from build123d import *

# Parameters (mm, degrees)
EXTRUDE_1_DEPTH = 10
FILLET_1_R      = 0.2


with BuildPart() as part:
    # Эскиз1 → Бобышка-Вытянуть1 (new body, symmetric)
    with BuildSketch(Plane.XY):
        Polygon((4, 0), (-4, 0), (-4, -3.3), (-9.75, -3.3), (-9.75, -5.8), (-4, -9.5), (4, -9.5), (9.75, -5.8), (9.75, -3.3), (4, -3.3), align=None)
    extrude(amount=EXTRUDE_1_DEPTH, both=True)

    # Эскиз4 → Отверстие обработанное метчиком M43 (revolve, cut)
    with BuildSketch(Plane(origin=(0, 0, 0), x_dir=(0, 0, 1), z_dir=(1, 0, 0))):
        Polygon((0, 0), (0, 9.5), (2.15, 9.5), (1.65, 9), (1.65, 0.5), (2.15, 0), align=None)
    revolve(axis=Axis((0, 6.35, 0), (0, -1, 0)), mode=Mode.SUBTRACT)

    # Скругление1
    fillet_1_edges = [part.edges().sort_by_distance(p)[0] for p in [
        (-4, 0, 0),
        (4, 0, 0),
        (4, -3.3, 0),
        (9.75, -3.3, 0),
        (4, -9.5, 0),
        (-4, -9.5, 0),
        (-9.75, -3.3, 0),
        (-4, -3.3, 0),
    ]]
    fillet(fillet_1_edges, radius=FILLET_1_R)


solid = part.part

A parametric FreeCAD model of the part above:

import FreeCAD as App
import Part
import Sketcher

V = App.Vector
Q = App.Units.Quantity


def edges_at(feature, points):
    """Names of the edges that pass closest to the given points."""
    edges = feature.Shape.Edges
    near = lambda p: min(range(len(edges)), key=lambda i: edges[i].distToShape(Part.Vertex(*p))[0])
    return sorted({f"Edge{near(p) + 1}" for p in points})


def add_polygon(sketch, points):
    """Adds a closed chain of lines whose ends are joined by coincident constraints."""
    first, n = sketch.GeometryCount, len(points)
    for a, b in zip(points, points[1:] + points[:1]):
        sketch.addGeometry(Part.LineSegment(App.Vector(*a, 0), App.Vector(*b, 0)), False)
    for i in range(n):
        sketch.addConstraint(Sketcher.Constraint("Coincident", first + i, 2, first + (i + 1) % n, 1))

doc = App.newDocument("Part")
body = doc.addObject("PartDesign::Body", "Body")

# Sketch on XY plane
sketch1 = doc.addObject("Sketcher::SketchObject", "Sketch")
body.addObject(sketch1)
sketch1.AttachmentSupport = (doc.XY_Plane, [""])
sketch1.MapMode = "FlatFace"
add_polygon(sketch1, [(4, 0), (-4, 0), (-4, -3.3), (-9.75, -3.3), (-9.75, -5.8), (-4, -9.5), (4, -9.5), (9.75, -5.8), (9.75, -3.3), (4, -3.3)])  # lines 0-9
sketch1.addConstraint([
    Sketcher.Constraint("Horizontal", 0),
    Sketcher.Constraint("Vertical", 1),
    Sketcher.Constraint("Horizontal", 2),
    Sketcher.Constraint("Vertical", 3),
    Sketcher.Constraint("Horizontal", 5),
    Sketcher.Constraint("Vertical", 7),
    Sketcher.Constraint("Horizontal", 8),
    Sketcher.Constraint("Vertical", 9),
    Sketcher.Constraint("Symmetric", 0, 2, 9, 2, -1, 1),
    Sketcher.Constraint("Symmetric", 3, 2, 6, 2, -2),
    Sketcher.Constraint("Horizontal", 2, 2, 7, 2),
    Sketcher.Constraint("Vertical", 1, 2, 4, 2),
    Sketcher.Constraint("Vertical", 5, 2, 8, 2),
    Sketcher.Constraint("DistanceX", 0, 2, 0, 1, Q("8 mm")),
    Sketcher.Constraint("DistanceY", 1, 2, 1, 1, Q("3.3 mm")),
    Sketcher.Constraint("DistanceY", 3, 2, 3, 1, Q("2.5 mm")),
    Sketcher.Constraint("DistanceX", 2, 2, 2, 1, Q("5.75 mm")),
    Sketcher.Constraint("DistanceY", 4, 2, -1, 1, Q("9.5 mm")),
])
pad1 = doc.addObject("PartDesign::Pad", "Pad")
body.addObject(pad1)
pad1.Profile = sketch1
pad1.Length = 20
pad1.Midplane = True

# Sketch on YZ plane
sketch2 = doc.addObject("Sketcher::SketchObject", "Sketch001")
body.addObject(sketch2)
sketch2.AttachmentSupport = (doc.YZ_Plane, [""])
sketch2.MapMode = "FlatFace"
add_polygon(sketch2, [(-9.5, 0), (0, 0), (0, 2.15), (-0.5, 1.65), (-9, 1.65), (-9.5, 2.15)])  # lines 0-5
sketch2.addConstraint([
    Sketcher.Constraint("Horizontal", 0),
    Sketcher.Constraint("Vertical", 1),
    Sketcher.Constraint("Horizontal", 3),
    Sketcher.Constraint("Vertical", 5),
    Sketcher.Constraint("Coincident", 0, 2, -1, 1),
    Sketcher.Constraint("Perpendicular", 2, 4),
    Sketcher.Constraint("Horizontal", 1, 2, 4, 2),
    Sketcher.Constraint("Equal", 2, 4),
    Sketcher.Constraint("DistanceX", 0, 1, 0, 2, Q("9.5 mm")),
    Sketcher.Constraint("DistanceX", 3, 2, 3, 1, Q("8.5 mm")),
    Sketcher.Constraint("DistanceY", 1, 1, 1, 2, Q("2.15 mm")),
])
groove = doc.addObject("PartDesign::Groove", "Groove")
body.addObject(groove)
groove.Profile = sketch2
groove.ReferenceAxis = (sketch2, ["H_Axis"])
groove.Angle = 360
doc.recompute()

fillet = doc.addObject("PartDesign::Fillet", "Fillet")
body.addObject(fillet)
fillet.Base = (groove, edges_at(groove, [
    (-4, 0, 0),
    (4, 0, 0),
    (4, -3.3, 0),
    (9.75, -3.3, 0),
    (4, -9.5, 0),
    (-4, -9.5, 0),
    (-9.75, -3.3, 0),
    (-4, -3.3, 0),
]))
fillet.Radius = 0.2

doc.recompute()
